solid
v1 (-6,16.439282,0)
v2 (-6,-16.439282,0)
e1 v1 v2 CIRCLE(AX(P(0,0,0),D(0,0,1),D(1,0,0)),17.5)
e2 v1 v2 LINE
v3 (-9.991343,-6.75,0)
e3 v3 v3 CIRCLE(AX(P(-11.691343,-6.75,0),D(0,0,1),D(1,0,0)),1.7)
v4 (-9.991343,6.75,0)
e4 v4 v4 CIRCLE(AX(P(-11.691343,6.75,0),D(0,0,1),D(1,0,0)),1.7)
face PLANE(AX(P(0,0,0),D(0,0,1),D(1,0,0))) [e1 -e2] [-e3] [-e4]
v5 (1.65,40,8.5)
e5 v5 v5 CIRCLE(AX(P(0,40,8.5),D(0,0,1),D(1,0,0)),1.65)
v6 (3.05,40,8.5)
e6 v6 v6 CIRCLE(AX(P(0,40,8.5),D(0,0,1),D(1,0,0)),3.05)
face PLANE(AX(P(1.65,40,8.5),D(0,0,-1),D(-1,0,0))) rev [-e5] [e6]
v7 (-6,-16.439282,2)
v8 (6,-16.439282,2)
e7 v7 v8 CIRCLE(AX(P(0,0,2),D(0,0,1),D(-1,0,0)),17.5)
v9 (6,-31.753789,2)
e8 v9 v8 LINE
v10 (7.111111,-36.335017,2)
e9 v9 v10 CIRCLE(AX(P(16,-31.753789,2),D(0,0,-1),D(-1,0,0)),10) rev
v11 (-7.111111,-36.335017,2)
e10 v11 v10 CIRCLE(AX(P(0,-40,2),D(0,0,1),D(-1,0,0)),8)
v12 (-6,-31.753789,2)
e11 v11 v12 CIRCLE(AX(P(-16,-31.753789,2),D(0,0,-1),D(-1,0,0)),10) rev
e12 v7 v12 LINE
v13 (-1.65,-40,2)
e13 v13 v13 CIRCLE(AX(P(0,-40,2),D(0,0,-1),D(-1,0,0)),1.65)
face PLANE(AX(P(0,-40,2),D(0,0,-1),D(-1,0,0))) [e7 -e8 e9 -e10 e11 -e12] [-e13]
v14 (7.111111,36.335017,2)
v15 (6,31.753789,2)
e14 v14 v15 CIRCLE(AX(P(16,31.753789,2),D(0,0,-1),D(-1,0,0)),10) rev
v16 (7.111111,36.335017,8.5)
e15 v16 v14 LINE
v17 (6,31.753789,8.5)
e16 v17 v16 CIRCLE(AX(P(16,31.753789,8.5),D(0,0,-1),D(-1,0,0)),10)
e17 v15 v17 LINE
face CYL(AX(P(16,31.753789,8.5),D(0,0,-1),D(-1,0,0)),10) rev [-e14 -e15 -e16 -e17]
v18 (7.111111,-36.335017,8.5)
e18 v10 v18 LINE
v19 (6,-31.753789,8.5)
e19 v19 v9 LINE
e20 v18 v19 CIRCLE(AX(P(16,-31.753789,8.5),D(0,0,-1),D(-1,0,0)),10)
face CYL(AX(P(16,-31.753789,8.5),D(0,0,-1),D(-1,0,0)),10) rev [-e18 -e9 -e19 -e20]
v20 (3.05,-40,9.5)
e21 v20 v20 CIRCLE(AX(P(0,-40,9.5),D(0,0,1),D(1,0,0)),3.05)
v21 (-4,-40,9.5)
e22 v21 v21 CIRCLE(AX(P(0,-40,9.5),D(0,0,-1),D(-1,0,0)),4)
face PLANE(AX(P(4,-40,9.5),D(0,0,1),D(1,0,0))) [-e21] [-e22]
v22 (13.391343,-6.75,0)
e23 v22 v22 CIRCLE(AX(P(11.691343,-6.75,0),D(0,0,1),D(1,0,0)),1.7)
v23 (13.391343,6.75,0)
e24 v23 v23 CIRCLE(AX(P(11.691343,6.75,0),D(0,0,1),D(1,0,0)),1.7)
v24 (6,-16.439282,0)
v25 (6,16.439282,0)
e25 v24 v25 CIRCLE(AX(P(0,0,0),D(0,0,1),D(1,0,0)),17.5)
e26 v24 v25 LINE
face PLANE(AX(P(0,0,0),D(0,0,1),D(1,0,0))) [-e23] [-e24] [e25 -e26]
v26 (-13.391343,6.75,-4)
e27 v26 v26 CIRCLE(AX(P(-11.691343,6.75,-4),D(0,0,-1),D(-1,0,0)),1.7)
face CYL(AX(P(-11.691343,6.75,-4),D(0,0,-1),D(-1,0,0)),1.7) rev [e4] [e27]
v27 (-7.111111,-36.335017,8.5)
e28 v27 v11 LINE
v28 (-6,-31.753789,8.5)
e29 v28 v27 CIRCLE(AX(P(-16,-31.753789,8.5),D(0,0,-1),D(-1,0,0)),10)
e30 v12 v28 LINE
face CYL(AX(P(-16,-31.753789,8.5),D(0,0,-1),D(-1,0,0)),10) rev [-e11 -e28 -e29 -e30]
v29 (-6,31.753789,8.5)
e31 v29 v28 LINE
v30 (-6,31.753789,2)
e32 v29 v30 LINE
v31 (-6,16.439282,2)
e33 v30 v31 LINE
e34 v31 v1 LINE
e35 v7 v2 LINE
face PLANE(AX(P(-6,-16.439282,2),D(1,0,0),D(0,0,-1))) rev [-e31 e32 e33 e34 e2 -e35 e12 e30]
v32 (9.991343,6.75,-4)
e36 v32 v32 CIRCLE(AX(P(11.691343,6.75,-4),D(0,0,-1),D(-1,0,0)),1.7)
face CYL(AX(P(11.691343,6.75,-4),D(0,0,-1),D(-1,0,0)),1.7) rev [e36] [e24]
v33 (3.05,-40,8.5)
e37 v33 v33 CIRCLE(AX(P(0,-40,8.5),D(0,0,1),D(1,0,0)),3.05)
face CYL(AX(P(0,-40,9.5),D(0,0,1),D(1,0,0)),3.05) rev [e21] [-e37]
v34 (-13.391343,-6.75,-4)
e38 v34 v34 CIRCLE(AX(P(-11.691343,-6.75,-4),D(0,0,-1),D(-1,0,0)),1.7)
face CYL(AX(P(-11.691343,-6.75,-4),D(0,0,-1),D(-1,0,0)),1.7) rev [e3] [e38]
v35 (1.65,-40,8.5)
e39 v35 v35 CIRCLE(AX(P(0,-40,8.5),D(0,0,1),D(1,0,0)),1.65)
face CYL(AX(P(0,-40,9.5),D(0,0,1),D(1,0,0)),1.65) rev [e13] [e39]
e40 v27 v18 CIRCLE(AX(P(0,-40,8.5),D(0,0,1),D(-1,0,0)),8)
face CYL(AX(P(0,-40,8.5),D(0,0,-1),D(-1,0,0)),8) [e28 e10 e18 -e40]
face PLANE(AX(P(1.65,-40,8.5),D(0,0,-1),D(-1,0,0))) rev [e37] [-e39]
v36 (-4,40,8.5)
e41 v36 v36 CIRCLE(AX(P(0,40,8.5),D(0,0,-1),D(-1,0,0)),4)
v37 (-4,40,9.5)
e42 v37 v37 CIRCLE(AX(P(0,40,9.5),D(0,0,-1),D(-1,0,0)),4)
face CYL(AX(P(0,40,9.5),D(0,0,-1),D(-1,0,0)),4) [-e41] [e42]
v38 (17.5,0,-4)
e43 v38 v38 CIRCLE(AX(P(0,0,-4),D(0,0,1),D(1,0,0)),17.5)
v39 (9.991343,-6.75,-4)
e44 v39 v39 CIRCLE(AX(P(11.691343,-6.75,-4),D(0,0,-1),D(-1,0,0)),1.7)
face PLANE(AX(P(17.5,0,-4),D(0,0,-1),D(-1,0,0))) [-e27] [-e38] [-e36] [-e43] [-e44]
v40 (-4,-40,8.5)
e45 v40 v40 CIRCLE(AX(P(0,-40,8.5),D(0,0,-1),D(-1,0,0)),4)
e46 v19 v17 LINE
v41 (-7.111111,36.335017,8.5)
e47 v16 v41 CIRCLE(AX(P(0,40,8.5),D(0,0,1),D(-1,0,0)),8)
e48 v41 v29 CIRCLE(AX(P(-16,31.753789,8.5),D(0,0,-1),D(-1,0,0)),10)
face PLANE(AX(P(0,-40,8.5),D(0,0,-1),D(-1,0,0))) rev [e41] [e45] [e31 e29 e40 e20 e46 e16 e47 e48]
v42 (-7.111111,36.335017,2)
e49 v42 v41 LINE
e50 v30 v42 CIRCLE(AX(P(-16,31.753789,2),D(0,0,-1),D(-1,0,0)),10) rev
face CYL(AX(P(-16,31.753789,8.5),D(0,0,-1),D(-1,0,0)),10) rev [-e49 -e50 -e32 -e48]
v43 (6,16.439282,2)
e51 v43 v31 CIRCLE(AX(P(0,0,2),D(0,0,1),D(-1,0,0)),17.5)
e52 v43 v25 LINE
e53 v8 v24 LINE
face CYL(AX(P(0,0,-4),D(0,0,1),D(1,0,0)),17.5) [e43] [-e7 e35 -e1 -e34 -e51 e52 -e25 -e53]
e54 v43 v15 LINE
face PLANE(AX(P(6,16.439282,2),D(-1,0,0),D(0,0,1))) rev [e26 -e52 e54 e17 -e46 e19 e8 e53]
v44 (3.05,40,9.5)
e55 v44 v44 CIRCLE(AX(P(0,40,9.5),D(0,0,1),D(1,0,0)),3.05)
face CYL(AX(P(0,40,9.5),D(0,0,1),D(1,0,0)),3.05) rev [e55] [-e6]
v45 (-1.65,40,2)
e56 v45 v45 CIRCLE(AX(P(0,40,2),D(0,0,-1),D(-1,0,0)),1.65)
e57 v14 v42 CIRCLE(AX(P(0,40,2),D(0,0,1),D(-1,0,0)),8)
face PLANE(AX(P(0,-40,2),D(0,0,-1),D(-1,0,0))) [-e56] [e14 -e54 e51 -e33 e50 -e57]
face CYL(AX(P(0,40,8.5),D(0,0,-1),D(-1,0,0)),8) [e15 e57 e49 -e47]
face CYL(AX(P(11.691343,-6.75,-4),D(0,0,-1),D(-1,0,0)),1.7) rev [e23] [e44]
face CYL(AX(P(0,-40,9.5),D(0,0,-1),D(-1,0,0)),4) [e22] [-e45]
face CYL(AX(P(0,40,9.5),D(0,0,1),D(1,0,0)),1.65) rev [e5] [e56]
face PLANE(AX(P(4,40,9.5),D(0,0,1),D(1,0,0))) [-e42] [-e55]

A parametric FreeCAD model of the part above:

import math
import FreeCAD as App
import Part
import Sketcher
Q = App.Units.Quantity


def edges_at(feature, points):
    """Names of the edges that pass closest to the given points."""
    edges = feature.Shape.Edges
    near = lambda p: min(range(len(edges)), key=lambda i: edges[i].distToShape(Part.Vertex(*p))[0])
    return sorted({f"Edge{near(p) + 1}" for p in points})

doc = App.newDocument("Part")
body = doc.addObject("PartDesign::Body", "Body")

# Sketch on XZ plane
sketch1 = body.newObject("Sketcher::SketchObject", "Sketch")
sketch1.AttachmentSupport = (doc.getObject("XZ_Plane"), [""])
sketch1.MapMode = "FlatFace"
sketch1.addGeometry(Part.LineSegment(App.Vector(0, -4, 0), App.Vector(0, 0, 0)), False)
sketch1.addGeometry(Part.LineSegment(App.Vector(0, 0, 0), App.Vector(17.5, 0, 0)), False)
sketch1.addGeometry(Part.LineSegment(App.Vector(17.5, 0, 0), App.Vector(17.5, -4, 0)), False)
sketch1.addGeometry(Part.LineSegment(App.Vector(17.5, -4, 0), App.Vector(0, -4, 0)), False)
sketch1.addConstraint(Sketcher.Constraint("Coincident", 0, 2, 1, 1))
sketch1.addConstraint(Sketcher.Constraint("Coincident", 1, 2, 2, 1))
sketch1.addConstraint(Sketcher.Constraint("Coincident", 2, 2, 3, 1))
sketch1.addConstraint(Sketcher.Constraint("Coincident", 3, 2, 0, 1))
sketch1.addConstraint(Sketcher.Constraint("Vertical", 0))
sketch1.addConstraint(Sketcher.Constraint("Horizontal", 1))
sketch1.addConstraint(Sketcher.Constraint("Vertical", 2))
sketch1.addConstraint(Sketcher.Constraint("Horizontal", 3))
sketch1.addConstraint(Sketcher.Constraint("Coincident", 0, 2, -1, 1))
sketch1.addConstraint(Sketcher.Constraint("DistanceY", 0, 1, 0, 2, Q("4 mm")))
sketch1.addConstraint(Sketcher.Constraint("DistanceX", 1, 1, 1, 2, Q("17.5 mm")))
revolution = body.newObject("PartDesign::Revolution", "Revolution")
revolution.Profile = sketch1
revolution.ReferenceAxis = (sketch1, ["V_Axis"])
revolution.Angle = 360

# Sketch on XY plane
sketch2 = body.newObject("Sketcher::SketchObject", "Sketch001")
sketch2.AttachmentSupport = (doc.getObject("XY_Plane"), [""])
sketch2.MapMode = "FlatFace"
sketch2.addGeometry(Part.LineSegment(App.Vector(6, -16, 0), App.Vector(6, 16, 0)), False)
sketch2.addGeometry(Part.ArcOfCircle(Part.Circle(App.Vector(0, 0, 0), App.Vector(0, 0, 1), 18), math.radians(70), math.radians(110)), False)
sketch2.addGeometry(Part.LineSegment(App.Vector(-6, 16, 0), App.Vector(-6, -16, 0)), False)
sketch2.addGeometry(Part.ArcOfCircle(Part.Circle(App.Vector(0, 0, 0), App.Vector(0, 0, 1), 18), math.radians(-110), math.radians(-70)), False)
sketch2.addConstraint(Sketcher.Constraint("Coincident", 0, 2, 1, 1))
sketch2.addConstraint(Sketcher.Constraint("Coincident", 1, 2, 2, 1))
sketch2.addConstraint(Sketcher.Constraint("Coincident", 2, 2, 3, 1))
sketch2.addConstraint(Sketcher.Constraint("Coincident", 3, 2, 0, 1))
sketch2.addConstraint(Sketcher.Constraint("Vertical", 0))
sketch2.addConstraint(Sketcher.Constraint("Vertical", 2))
sketch2.addConstraint(Sketcher.Constraint("Coincident", 1, 3, -1, 1))
sketch2.addConstraint(Sketcher.Constraint("Coincident", 3, 3, -1, 1))
sketch2.addConstraint(Sketcher.Constraint("Equal", 1, 3))
sketch2.addConstraint(Sketcher.Constraint("Horizontal", 0, 2, 1, 2))
sketch2.addConstraint(Sketcher.Constraint("Radius", 1, Q("17.5 mm")))
sketch2.addConstraint(Sketcher.Constraint("DistanceX", -1, 1, 0, 2, Q("6 mm")))
pad1 = body.newObject("PartDesign::Pad", "Pad")
pad1.Profile = sketch2
pad1.Length = 2

# Sketch on XY plane
sketch3 = body.newObject("Sketcher::SketchObject", "Sketch002")
sketch3.AttachmentSupport = (doc.getObject("XY_Plane"), [""])
sketch3.MapMode = "FlatFace"
sketch3.AttachmentOffset = App.Placement(App.Vector(0, 0, 2), App.Rotation())
sketch3.addGeometry(Part.LineSegment(App.Vector(-6, 35, 0), App.Vector(-6, -35, 0)), False)
sketch3.addGeometry(Part.ArcOfCircle(Part.Circle(App.Vector(0, -40, 0), App.Vector(0, 0, 1), 8), math.radians(139), math.radians(401)), False)
sketch3.addGeometry(Part.LineSegment(App.Vector(6, -35, 0), App.Vector(6, 35, 0)), False)
sketch3.addGeometry(Part.ArcOfCircle(Part.Circle(App.Vector(0, 40, 0), App.Vector(0, 0, 1), 8), math.radians(-41), math.radians(221)), False)
sketch3.addConstraint(Sketcher.Constraint("Coincident", 0, 2, 1, 1))
sketch3.addConstraint(Sketcher.Constraint("Coincident", 1, 2, 2, 1))
sketch3.addConstraint(Sketcher.Constraint("Coincident", 2, 2, 3, 1))
sketch3.addConstraint(Sketcher.Constraint("Coincident", 3, 2, 0, 1))
sketch3.addConstraint(Sketcher.Constraint("Vertical", 0))
sketch3.addConstraint(Sketcher.Constraint("Vertical", 2))
sketch3.addConstraint(Sketcher.Constraint("Equal", 1, 3))
sketch3.addConstraint(Sketcher.Constraint("Symmetric", 1, 3, 3, 3, -1, 1))
sketch3.addConstraint(Sketcher.Constraint("Symmetric", 0, 2, 1, 2, -2))
sketch3.addConstraint(Sketcher.Constraint("Radius", 1, Q("8 mm")))
sketch3.addConstraint(Sketcher.Constraint("DistanceY", 1, 3, -1, 1, Q("40 mm")))
sketch3.addConstraint(Sketcher.Constraint("DistanceX", 0, 2, -1, 1, Q("6 mm")))
pad2 = body.newObject("PartDesign::Pad", "Pad001")
pad2.Profile = sketch3
pad2.Length = 6.5

# Sketch on XZ plane
sketch4 = body.newObject("Sketcher::SketchObject", "Sketch003")
sketch4.AttachmentSupport = (doc.getObject("XZ_Plane"), [""])
sketch4.MapMode = "FlatFace"
sketch4.AttachmentOffset = App.Placement(App.Vector(0, 0, 40), App.Rotation())
sketch4.addGeometry(Part.LineSegment(App.Vector(0, 9.5, 0), App.Vector(0, 8.5, 0)), False)
sketch4.addGeometry(Part.LineSegment(App.Vector(0, 8.5, 0), App.Vector(4, 8.5, 0)), False)
sketch4.addGeometry(Part.LineSegment(App.Vector(4, 8.5, 0), App.Vector(4, 9.5, 0)), False)
sketch4.addGeometry(Part.LineSegment(App.Vector(4, 9.5, 0), App.Vector(0, 9.5, 0)), False)
sketch4.addConstraint(Sketcher.Constraint("Coincident", 0, 2, 1, 1))
sketch4.addConstraint(Sketcher.Constraint("Coincident", 1, 2, 2, 1))
sketch4.addConstraint(Sketcher.Constraint("Coincident", 2, 2, 3, 1))
sketch4.addConstraint(Sketcher.Constraint("Coincident", 3, 2, 0, 1))
sketch4.addConstraint(Sketcher.Constraint("Vertical", 0))
sketch4.addConstraint(Sketcher.Constraint("Horizontal", 1))
sketch4.addConstraint(Sketcher.Constraint("Vertical", 2))
sketch4.addConstraint(Sketcher.Constraint("Horizontal", 3))
sketch4.addConstraint(Sketcher.Constraint("PointOnObject", 0, 2, -2))
sketch4.addConstraint(Sketcher.Constraint("DistanceX", 1, 1, 1, 2, Q("4 mm")))
sketch4.addConstraint(Sketcher.Constraint("DistanceY", 0, 2, 0, 1, Q("1 mm")))
sketch4.addConstraint(Sketcher.Constraint("DistanceY", -1, 1, 0, 2, Q("8.5 mm")))
revolution2 = body.newObject("PartDesign::Revolution", "Revolution001")
revolution2.Profile = sketch4
revolution2.ReferenceAxis = (sketch4, ["V_Axis"])
revolution2.Angle = 360

# Sketch on XZ plane
sketch5 = body.newObject("Sketcher::SketchObject", "Sketch004")
sketch5.AttachmentSupport = (doc.getObject("XZ_Plane"), [""])
sketch5.MapMode = "FlatFace"
sketch5.AttachmentOffset = App.Placement(App.Vector(0, 0, -40), App.Rotation())
sketch5.addGeometry(Part.LineSegment(App.Vector(0, 9.5, 0), App.Vector(0, 8.5, 0)), False)
sketch5.addGeometry(Part.LineSegment(App.Vector(0, 8.5, 0), App.Vector(4, 8.5, 0)), False)
sketch5.addGeometry(Part.LineSegment(App.Vector(4, 8.5, 0), App.Vector(4, 9.5, 0)), False)
sketch5.addGeometry(Part.LineSegment(App.Vector(4, 9.5, 0), App.Vector(0, 9.5, 0)), False)
sketch5.addConstraint(Sketcher.Constraint("Coincident", 0, 2, 1, 1))
sketch5.addConstraint(Sketcher.Constraint("Coincident", 1, 2, 2, 1))
sketch5.addConstraint(Sketcher.Constraint("Coincident", 2, 2, 3, 1))
sketch5.addConstraint(Sketcher.Constraint("Coincident", 3, 2, 0, 1))
sketch5.addConstraint(Sketcher.Constraint("Vertical", 0))
sketch5.addConstraint(Sketcher.Constraint("Horizontal", 1))
sketch5.addConstraint(Sketcher.Constraint("Vertical", 2))
sketch5.addConstraint(Sketcher.Constraint("Horizontal", 3))
sketch5.addConstraint(Sketcher.Constraint("PointOnObject", 0, 2, -2))
sketch5.addConstraint(Sketcher.Constraint("DistanceX", 1, 1, 1, 2, Q("4 mm")))
sketch5.addConstraint(Sketcher.Constraint("DistanceY", 0, 2, 0, 1, Q("1 mm")))
sketch5.addConstraint(Sketcher.Constraint("DistanceY", -1, 1, 0, 2, Q("8.5 mm")))
revolution3 = body.newObject("PartDesign::Revolution", "Revolution002")
revolution3.Profile = sketch5
revolution3.ReferenceAxis = (sketch5, ["V_Axis"])
revolution3.Angle = 360

# Sketch on XY plane
sketch6 = body.newObject("Sketcher::SketchObject", "Sketch005")
sketch6.AttachmentSupport = (doc.getObject("XY_Plane"), [""])
sketch6.MapMode = "FlatFace"
sketch6.AttachmentOffset = App.Placement(App.Vector(0, 0, -4), App.Rotation())
sketch6.addGeometry(Part.Circle(App.Vector(-11.7, 6.8, 0), App.Vector(0, 0, 1), 1.7), False)
sketch6.addGeometry(Part.Circle(App.Vector(-11.7, -6.8, 0), App.Vector(0, 0, 1), 1.7), False)
sketch6.addGeometry(Part.Circle(App.Vector(11.7, -6.8, 0), App.Vector(0, 0, 1), 1.7), False)
sketch6.addGeometry(Part.Circle(App.Vector(11.7, 6.8, 0), App.Vector(0, 0, 1), 1.7), False)
sketch6.addConstraint(Sketcher.Constraint("Equal", 0, 1))
sketch6.addConstraint(Sketcher.Constraint("Equal", 1, 2))
sketch6.addConstraint(Sketcher.Constraint("Equal", 2, 3))
sketch6.addConstraint(Sketcher.Constraint("Symmetric", 0, 3, 2, 3, -1, 1))
sketch6.addConstraint(Sketcher.Constraint("Symmetric", 1, 3, 3, 3, -1, 1))
sketch6.addConstraint(Sketcher.Constraint("Symmetric", 1, 3, 2, 3, -2))
sketch6.addConstraint(Sketcher.Constraint("Diameter", 0, Q("3.4 mm")))
sketch6.addConstraint(Sketcher.Constraint("DistanceY", 1, 3, 0, 3, Q("13.5 mm")))
sketch6.addConstraint(Sketcher.Constraint("DistanceX", 0, 3, -1, 1, Q("11.691343 mm")))
doc.recompute()
hole = body.newObject("PartDesign::Hole", "Hole")
hole.Profile = sketch6
hole.ThreadType = "None"
hole.Diameter = 3.4
hole.DepthType = "Dimension"
hole.Depth = 13.5
hole.DrillPoint = "Flat"
hole.Reversed = True

# Sketch on XY plane
sketch7 = body.newObject("Sketcher::SketchObject", "Sketch006")
sketch7.AttachmentSupport = (doc.getObject("XY_Plane"), [""])
sketch7.MapMode = "FlatFace"
sketch7.AttachmentOffset = App.Placement(App.Vector(0, 0, 9.5), App.Rotation())
sketch7.addGeometry(Part.Circle(App.Vector(0, -40, 0), App.Vector(0, 0, 1), 1.6), False)
sketch7.addGeometry(Part.Circle(App.Vector(0, 40, 0), App.Vector(0, 0, 1), 1.6), False)
sketch7.addConstraint(Sketcher.Constraint("Equal", 0, 1))
sketch7.addConstraint(Sketcher.Constraint("Symmetric", 0, 3, 1, 3, -1, 1))
sketch7.addConstraint(Sketcher.Constraint("PointOnObject", 0, 3, -2))
sketch7.addConstraint(Sketcher.Constraint("Diameter", 0, Q("3.3 mm")))
sketch7.addConstraint(Sketcher.Constraint("DistanceY", 0, 3, -1, 1, Q("40 mm")))
doc.recompute()
hole2 = body.newObject("PartDesign::Hole", "Hole001")
hole2.Profile = sketch7
hole2.ThreadType = "None"
hole2.Diameter = 3.3
hole2.DepthType = "Dimension"
hole2.Depth = 13.5
hole2.DrillPoint = "Flat"
hole2.HoleCutType = "Counterbore"
hole2.HoleCutDiameter = 6.1
hole2.HoleCutDepth = 1
doc.recompute()

fillet = body.newObject("PartDesign::Fillet", "Fillet")
fillet.Base = (hole2, edges_at(hole2, [
    (-6, -34.708, 5.25),
    (6, -34.708, 5.25),
    (6, 34.708, 5.25),
    (-6, 34.708, 5.25),
]))
fillet.Radius = 10

doc.recompute()
